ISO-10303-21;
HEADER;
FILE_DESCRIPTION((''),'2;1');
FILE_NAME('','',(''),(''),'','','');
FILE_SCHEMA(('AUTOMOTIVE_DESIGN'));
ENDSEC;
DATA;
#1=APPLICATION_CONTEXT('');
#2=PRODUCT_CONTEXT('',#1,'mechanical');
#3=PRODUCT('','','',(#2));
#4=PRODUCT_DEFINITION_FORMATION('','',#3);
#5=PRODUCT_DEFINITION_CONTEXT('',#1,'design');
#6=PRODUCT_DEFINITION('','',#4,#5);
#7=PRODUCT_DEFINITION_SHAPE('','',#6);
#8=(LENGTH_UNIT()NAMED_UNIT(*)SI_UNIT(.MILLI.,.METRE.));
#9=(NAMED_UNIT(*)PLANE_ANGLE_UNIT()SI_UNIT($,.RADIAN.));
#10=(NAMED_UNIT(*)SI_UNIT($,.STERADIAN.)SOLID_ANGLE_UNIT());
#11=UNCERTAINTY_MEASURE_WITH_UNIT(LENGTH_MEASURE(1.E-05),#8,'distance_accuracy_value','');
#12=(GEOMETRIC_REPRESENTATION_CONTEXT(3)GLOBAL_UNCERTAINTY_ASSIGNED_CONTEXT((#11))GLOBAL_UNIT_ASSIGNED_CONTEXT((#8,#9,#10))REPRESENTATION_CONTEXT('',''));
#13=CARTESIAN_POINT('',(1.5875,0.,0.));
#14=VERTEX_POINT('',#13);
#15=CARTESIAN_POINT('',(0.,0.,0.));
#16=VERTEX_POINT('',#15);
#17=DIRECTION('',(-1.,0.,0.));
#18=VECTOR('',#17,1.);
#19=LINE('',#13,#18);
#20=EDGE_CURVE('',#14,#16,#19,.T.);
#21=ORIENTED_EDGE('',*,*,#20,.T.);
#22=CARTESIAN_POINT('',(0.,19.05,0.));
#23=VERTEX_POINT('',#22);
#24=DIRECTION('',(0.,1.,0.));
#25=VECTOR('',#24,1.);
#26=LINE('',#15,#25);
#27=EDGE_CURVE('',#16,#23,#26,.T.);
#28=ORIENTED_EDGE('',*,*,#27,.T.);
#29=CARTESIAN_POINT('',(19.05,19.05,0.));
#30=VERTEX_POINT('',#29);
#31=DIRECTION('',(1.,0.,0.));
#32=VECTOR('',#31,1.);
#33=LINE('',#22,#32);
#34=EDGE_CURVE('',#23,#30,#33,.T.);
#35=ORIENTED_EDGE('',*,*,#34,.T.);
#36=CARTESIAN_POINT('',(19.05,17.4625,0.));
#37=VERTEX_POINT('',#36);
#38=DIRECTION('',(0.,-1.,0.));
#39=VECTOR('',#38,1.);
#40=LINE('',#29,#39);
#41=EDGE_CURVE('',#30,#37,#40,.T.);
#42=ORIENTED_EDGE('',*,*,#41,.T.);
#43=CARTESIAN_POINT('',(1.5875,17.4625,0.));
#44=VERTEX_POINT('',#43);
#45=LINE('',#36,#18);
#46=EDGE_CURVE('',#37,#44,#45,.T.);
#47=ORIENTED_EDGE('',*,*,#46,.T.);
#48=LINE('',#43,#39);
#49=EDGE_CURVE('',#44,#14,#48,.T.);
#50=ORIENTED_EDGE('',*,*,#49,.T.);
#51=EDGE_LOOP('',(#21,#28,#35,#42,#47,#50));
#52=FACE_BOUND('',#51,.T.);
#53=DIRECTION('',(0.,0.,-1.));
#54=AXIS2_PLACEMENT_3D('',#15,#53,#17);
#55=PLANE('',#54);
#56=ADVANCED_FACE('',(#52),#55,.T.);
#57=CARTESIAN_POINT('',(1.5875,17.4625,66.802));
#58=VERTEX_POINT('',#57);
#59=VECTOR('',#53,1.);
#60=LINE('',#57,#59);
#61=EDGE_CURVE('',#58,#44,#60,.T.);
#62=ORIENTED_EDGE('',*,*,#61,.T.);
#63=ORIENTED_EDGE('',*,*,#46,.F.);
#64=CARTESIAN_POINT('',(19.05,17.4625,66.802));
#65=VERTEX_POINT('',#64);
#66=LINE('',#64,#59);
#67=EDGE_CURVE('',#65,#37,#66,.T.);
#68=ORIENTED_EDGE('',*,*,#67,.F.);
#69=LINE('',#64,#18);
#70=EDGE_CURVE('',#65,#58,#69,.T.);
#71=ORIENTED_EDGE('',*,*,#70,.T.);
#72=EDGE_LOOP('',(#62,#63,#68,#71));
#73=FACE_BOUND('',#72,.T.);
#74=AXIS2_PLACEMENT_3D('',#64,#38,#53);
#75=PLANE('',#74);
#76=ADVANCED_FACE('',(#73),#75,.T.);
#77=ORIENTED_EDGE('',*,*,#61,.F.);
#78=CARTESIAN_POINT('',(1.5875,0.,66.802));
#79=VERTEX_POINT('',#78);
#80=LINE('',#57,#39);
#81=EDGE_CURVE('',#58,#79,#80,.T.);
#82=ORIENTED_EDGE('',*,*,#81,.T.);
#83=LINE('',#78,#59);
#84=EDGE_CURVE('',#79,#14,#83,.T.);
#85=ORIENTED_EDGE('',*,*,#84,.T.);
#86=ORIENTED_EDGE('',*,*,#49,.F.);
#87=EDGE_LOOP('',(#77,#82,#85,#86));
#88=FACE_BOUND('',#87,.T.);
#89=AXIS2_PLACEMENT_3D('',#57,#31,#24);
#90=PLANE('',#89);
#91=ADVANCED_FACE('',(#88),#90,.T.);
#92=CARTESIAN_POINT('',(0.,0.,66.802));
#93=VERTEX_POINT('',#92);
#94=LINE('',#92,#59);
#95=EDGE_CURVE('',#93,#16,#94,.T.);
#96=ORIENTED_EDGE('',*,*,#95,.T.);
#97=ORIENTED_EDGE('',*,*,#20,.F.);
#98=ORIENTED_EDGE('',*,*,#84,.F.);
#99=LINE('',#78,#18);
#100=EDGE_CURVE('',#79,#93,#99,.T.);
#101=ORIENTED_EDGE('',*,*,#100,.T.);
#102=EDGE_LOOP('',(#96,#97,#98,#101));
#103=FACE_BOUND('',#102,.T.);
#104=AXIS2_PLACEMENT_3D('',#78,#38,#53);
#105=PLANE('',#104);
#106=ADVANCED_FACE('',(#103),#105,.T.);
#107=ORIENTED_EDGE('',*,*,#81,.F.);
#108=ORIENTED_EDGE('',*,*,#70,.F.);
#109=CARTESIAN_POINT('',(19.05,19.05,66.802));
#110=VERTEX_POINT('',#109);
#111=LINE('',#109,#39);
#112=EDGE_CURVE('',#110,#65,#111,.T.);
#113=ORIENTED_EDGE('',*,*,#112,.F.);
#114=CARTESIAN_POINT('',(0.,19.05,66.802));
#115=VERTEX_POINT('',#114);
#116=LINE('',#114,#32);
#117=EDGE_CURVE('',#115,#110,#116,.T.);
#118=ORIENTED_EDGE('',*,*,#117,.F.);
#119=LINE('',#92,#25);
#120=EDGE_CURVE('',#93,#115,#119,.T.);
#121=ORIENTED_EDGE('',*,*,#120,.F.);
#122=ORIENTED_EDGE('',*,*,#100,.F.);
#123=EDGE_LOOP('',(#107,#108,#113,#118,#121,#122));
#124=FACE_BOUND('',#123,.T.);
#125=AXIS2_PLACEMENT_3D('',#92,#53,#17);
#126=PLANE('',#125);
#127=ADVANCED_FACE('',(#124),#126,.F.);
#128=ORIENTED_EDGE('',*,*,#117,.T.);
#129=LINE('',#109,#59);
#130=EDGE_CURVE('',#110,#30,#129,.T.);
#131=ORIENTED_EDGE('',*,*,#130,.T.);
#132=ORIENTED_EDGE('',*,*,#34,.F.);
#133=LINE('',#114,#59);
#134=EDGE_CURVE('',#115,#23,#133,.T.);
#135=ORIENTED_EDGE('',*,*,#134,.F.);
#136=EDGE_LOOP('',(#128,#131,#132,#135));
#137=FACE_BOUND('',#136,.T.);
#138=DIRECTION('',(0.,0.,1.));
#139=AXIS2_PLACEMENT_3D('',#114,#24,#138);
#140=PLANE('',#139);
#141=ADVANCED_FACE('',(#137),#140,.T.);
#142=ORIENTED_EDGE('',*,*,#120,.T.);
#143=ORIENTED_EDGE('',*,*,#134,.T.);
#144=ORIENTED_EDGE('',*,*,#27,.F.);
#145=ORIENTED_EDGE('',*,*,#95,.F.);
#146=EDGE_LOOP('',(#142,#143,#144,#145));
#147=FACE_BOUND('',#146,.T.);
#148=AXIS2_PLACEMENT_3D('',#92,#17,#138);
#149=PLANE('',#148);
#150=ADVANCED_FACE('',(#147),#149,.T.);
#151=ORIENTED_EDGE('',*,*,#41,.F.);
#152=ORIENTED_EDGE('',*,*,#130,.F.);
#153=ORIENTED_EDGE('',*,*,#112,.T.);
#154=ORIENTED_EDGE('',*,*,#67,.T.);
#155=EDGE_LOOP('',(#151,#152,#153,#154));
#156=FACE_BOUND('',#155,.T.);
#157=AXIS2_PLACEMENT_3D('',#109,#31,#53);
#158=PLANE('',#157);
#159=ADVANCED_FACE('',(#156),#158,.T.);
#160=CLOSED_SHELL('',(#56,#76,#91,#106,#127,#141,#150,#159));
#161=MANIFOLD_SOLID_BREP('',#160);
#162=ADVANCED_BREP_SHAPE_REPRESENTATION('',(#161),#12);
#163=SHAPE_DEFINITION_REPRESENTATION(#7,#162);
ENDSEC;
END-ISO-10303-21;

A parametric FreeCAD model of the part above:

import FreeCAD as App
import Part
import Sketcher
from FreeCAD import Vector
Q = App.Units.Quantity

doc = App.newDocument("Part")
params = doc.addObject("Spreadsheet::Sheet", "Params")
for row, (alias, value) in enumerate([
    ("sketch1_width", "0.75 in"),
    ("sketch1_width2", "0.0625 in"),
    ("pad1_length", "2.63 in"),
], start=1):
    params.set(f"A{row}", alias)
    params.set(f"B{row}", "=" + value)
    params.setAlias(f"B{row}", alias)

body = doc.addObject("PartDesign::Body", "Body")

# Sketch on XY plane
sketch1 = body.newObject("Sketcher::SketchObject", "Sketch")
sketch1.AttachmentSupport = (doc.getObject("XY_Plane"), [""])
sketch1.MapMode = "FlatFace"
sketch1.addGeometry(Part.LineSegment(Vector(0, 19.05, 0), Vector(0, 0, 0)), False)
sketch1.addGeometry(Part.LineSegment(Vector(0, 0, 0), Vector(1.5875, 0, 0)), False)
sketch1.addGeometry(Part.LineSegment(Vector(1.5875, 0, 0), Vector(1.5875, 17.4625, 0)), False)
sketch1.addGeometry(Part.LineSegment(Vector(1.5875, 17.4625, 0), Vector(19.05, 17.4625, 0)), False)
sketch1.addGeometry(Part.LineSegment(Vector(19.05, 17.4625, 0), Vector(19.05, 19.05, 0)), False)
sketch1.addGeometry(Part.LineSegment(Vector(19.05, 19.05, 0), Vector(0, 19.05, 0)), False)
sketch1.addConstraint(Sketcher.Constraint("Coincident", 0, 2, 1, 1))
sketch1.addConstraint(Sketcher.Constraint("Coincident", 1, 2, 2, 1))
sketch1.addConstraint(Sketcher.Constraint("Coincident", 2, 2, 3, 1))
sketch1.addConstraint(Sketcher.Constraint("Coincident", 3, 2, 4, 1))
sketch1.addConstraint(Sketcher.Constraint("Coincident", 4, 2, 5, 1))
sketch1.addConstraint(Sketcher.Constraint("Coincident", 5, 2, 0, 1))
sketch1.addConstraint(Sketcher.Constraint("Vertical", 0))
sketch1.addConstraint(Sketcher.Constraint("Horizontal", 1))
sketch1.addConstraint(Sketcher.Constraint("Vertical", 2))
sketch1.addConstraint(Sketcher.Constraint("Horizontal", 3))
sketch1.addConstraint(Sketcher.Constraint("Vertical", 4))
sketch1.addConstraint(Sketcher.Constraint("Horizontal", 5))
sketch1.addConstraint(Sketcher.Constraint("Coincident", 0, 2, -1, 1))
sketch1.addConstraint(Sketcher.Constraint("Equal", 5, 0))
sketch1.addConstraint(Sketcher.Constraint("Equal", 3, 2))
sketch1.addConstraint(Sketcher.Constraint("DistanceX", 5, 2, 5, 1, Q("0.75 in")))
sketch1.addConstraint(Sketcher.Constraint("DistanceX", 1, 1, 1, 2, Q("0.0625 in")))
sketch1.setExpression("Constraints[15]", "Params.sketch1_width")
sketch1.setExpression("Constraints[16]", "Params.sketch1_width2")
pad1 = body.newObject("PartDesign::Pad", "Pad")
pad1.Profile = sketch1
pad1.setExpression("Length", "Params.pad1_length")

doc.recompute()
